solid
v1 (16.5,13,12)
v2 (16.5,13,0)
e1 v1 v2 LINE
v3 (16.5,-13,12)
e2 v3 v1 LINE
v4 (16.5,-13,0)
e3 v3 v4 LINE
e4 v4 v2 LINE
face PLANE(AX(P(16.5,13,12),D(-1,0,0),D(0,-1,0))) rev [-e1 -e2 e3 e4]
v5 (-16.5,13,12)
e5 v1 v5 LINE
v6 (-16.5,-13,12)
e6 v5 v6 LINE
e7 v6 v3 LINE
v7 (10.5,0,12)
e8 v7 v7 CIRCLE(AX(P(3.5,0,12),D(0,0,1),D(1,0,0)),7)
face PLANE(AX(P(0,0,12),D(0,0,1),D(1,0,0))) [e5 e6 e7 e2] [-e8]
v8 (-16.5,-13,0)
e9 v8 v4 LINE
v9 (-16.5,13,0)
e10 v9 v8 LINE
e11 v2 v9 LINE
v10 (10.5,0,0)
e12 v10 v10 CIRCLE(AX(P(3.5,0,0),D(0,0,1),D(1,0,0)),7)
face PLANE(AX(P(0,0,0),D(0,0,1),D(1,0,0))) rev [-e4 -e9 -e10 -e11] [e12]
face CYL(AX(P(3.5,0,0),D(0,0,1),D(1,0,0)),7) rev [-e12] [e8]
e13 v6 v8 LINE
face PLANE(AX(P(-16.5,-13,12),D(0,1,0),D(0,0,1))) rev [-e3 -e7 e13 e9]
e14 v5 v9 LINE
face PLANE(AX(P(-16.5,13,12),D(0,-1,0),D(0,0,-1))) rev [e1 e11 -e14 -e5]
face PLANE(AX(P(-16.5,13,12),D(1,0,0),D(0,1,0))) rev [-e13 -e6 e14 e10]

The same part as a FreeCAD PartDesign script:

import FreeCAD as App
import Part
import Sketcher
from FreeCAD import Vector

doc = App.newDocument("Part")
params = doc.addObject("Spreadsheet::Sheet", "Params")
for row, (alias, value) in enumerate([
    ("sketch1_width", "33 mm"),
    ("sketch1_height", "26 mm"),
    ("pad1_length", "12 mm"),
    ("sketch2_diameter", "14 mm"),
], start=1):
    params.set(f"A{row}", alias)
    params.set(f"B{row}", "=" + value)
    params.setAlias(f"B{row}", alias)

body = doc.addObject("PartDesign::Body", "Body")

sketch1 = doc.addObject("Sketcher::SketchObject", "Sketch")
body.addObject(sketch1)
sketch1.AttachmentSupport = (doc.XY_Plane, [""])
sketch1.MapMode = "FlatFace"
sketch1.addGeometry([
    Part.LineSegment(Vector(-16.5, 13, 0), Vector(-16.5, -13, 0)),
    Part.LineSegment(Vector(-16.5, -13, 0), Vector(16.5, -13, 0)),
    Part.LineSegment(Vector(16.5, -13, 0), Vector(16.5, 13, 0)),
    Part.LineSegment(Vector(16.5, 13, 0), Vector(-16.5, 13, 0)),
], False)
sketch1.addConstraint([
    Sketcher.Constraint("Coincident", 0, 2, 1, 1),
    Sketcher.Constraint("Coincident", 1, 2, 2, 1),
    Sketcher.Constraint("Coincident", 2, 2, 3, 1),
    Sketcher.Constraint("Coincident", 3, 2, 0, 1),
    Sketcher.Constraint("Vertical", 0),
    Sketcher.Constraint("Horizontal", 1),
    Sketcher.Constraint("Vertical", 2),
    Sketcher.Constraint("Horizontal", 3),
    Sketcher.Constraint("Symmetric", 0, 2, 2, 2, -1, 1),
    Sketcher.Constraint("DistanceX", 1, 1, 1, 2, 33.0),
    Sketcher.Constraint("DistanceY", 0, 2, 0, 1, 26.0),
])
sketch1.setExpression("Constraints[9]", "Params.sketch1_width")
sketch1.setExpression("Constraints[10]", "Params.sketch1_height")
pad1 = doc.addObject("PartDesign::Pad", "Pad")
body.addObject(pad1)
pad1.Profile = sketch1
pad1.setExpression("Length", "Params.pad1_length")

sketch2 = doc.addObject("Sketcher::SketchObject", "Sketch001")
body.addObject(sketch2)
sketch2.AttachmentSupport = (doc.XY_Plane, [""])
sketch2.MapMode = "FlatFace"
sketch2.AttachmentOffset = App.Placement(Vector(0, 0, 12), App.Rotation())
sketch2.addGeometry(Part.Circle(Vector(3.5, 0, 0), Vector(0, 0, 1), 7), False)
sketch2.addConstraint([
    Sketcher.Constraint("PointOnObject", 0, 3, -1),
    Sketcher.Constraint("Diameter", 0, 14.0),
    Sketcher.Constraint("DistanceX", -1, 1, 0, 3, 3.5),
])
sketch2.setExpression("Constraints[1]", "Params.sketch2_diameter")
pocket1 = doc.addObject("PartDesign::Pocket", "Pocket")
body.addObject(pocket1)
pocket1.Profile = sketch2
pocket1.Type = "ThroughAll"

doc.recompute()
